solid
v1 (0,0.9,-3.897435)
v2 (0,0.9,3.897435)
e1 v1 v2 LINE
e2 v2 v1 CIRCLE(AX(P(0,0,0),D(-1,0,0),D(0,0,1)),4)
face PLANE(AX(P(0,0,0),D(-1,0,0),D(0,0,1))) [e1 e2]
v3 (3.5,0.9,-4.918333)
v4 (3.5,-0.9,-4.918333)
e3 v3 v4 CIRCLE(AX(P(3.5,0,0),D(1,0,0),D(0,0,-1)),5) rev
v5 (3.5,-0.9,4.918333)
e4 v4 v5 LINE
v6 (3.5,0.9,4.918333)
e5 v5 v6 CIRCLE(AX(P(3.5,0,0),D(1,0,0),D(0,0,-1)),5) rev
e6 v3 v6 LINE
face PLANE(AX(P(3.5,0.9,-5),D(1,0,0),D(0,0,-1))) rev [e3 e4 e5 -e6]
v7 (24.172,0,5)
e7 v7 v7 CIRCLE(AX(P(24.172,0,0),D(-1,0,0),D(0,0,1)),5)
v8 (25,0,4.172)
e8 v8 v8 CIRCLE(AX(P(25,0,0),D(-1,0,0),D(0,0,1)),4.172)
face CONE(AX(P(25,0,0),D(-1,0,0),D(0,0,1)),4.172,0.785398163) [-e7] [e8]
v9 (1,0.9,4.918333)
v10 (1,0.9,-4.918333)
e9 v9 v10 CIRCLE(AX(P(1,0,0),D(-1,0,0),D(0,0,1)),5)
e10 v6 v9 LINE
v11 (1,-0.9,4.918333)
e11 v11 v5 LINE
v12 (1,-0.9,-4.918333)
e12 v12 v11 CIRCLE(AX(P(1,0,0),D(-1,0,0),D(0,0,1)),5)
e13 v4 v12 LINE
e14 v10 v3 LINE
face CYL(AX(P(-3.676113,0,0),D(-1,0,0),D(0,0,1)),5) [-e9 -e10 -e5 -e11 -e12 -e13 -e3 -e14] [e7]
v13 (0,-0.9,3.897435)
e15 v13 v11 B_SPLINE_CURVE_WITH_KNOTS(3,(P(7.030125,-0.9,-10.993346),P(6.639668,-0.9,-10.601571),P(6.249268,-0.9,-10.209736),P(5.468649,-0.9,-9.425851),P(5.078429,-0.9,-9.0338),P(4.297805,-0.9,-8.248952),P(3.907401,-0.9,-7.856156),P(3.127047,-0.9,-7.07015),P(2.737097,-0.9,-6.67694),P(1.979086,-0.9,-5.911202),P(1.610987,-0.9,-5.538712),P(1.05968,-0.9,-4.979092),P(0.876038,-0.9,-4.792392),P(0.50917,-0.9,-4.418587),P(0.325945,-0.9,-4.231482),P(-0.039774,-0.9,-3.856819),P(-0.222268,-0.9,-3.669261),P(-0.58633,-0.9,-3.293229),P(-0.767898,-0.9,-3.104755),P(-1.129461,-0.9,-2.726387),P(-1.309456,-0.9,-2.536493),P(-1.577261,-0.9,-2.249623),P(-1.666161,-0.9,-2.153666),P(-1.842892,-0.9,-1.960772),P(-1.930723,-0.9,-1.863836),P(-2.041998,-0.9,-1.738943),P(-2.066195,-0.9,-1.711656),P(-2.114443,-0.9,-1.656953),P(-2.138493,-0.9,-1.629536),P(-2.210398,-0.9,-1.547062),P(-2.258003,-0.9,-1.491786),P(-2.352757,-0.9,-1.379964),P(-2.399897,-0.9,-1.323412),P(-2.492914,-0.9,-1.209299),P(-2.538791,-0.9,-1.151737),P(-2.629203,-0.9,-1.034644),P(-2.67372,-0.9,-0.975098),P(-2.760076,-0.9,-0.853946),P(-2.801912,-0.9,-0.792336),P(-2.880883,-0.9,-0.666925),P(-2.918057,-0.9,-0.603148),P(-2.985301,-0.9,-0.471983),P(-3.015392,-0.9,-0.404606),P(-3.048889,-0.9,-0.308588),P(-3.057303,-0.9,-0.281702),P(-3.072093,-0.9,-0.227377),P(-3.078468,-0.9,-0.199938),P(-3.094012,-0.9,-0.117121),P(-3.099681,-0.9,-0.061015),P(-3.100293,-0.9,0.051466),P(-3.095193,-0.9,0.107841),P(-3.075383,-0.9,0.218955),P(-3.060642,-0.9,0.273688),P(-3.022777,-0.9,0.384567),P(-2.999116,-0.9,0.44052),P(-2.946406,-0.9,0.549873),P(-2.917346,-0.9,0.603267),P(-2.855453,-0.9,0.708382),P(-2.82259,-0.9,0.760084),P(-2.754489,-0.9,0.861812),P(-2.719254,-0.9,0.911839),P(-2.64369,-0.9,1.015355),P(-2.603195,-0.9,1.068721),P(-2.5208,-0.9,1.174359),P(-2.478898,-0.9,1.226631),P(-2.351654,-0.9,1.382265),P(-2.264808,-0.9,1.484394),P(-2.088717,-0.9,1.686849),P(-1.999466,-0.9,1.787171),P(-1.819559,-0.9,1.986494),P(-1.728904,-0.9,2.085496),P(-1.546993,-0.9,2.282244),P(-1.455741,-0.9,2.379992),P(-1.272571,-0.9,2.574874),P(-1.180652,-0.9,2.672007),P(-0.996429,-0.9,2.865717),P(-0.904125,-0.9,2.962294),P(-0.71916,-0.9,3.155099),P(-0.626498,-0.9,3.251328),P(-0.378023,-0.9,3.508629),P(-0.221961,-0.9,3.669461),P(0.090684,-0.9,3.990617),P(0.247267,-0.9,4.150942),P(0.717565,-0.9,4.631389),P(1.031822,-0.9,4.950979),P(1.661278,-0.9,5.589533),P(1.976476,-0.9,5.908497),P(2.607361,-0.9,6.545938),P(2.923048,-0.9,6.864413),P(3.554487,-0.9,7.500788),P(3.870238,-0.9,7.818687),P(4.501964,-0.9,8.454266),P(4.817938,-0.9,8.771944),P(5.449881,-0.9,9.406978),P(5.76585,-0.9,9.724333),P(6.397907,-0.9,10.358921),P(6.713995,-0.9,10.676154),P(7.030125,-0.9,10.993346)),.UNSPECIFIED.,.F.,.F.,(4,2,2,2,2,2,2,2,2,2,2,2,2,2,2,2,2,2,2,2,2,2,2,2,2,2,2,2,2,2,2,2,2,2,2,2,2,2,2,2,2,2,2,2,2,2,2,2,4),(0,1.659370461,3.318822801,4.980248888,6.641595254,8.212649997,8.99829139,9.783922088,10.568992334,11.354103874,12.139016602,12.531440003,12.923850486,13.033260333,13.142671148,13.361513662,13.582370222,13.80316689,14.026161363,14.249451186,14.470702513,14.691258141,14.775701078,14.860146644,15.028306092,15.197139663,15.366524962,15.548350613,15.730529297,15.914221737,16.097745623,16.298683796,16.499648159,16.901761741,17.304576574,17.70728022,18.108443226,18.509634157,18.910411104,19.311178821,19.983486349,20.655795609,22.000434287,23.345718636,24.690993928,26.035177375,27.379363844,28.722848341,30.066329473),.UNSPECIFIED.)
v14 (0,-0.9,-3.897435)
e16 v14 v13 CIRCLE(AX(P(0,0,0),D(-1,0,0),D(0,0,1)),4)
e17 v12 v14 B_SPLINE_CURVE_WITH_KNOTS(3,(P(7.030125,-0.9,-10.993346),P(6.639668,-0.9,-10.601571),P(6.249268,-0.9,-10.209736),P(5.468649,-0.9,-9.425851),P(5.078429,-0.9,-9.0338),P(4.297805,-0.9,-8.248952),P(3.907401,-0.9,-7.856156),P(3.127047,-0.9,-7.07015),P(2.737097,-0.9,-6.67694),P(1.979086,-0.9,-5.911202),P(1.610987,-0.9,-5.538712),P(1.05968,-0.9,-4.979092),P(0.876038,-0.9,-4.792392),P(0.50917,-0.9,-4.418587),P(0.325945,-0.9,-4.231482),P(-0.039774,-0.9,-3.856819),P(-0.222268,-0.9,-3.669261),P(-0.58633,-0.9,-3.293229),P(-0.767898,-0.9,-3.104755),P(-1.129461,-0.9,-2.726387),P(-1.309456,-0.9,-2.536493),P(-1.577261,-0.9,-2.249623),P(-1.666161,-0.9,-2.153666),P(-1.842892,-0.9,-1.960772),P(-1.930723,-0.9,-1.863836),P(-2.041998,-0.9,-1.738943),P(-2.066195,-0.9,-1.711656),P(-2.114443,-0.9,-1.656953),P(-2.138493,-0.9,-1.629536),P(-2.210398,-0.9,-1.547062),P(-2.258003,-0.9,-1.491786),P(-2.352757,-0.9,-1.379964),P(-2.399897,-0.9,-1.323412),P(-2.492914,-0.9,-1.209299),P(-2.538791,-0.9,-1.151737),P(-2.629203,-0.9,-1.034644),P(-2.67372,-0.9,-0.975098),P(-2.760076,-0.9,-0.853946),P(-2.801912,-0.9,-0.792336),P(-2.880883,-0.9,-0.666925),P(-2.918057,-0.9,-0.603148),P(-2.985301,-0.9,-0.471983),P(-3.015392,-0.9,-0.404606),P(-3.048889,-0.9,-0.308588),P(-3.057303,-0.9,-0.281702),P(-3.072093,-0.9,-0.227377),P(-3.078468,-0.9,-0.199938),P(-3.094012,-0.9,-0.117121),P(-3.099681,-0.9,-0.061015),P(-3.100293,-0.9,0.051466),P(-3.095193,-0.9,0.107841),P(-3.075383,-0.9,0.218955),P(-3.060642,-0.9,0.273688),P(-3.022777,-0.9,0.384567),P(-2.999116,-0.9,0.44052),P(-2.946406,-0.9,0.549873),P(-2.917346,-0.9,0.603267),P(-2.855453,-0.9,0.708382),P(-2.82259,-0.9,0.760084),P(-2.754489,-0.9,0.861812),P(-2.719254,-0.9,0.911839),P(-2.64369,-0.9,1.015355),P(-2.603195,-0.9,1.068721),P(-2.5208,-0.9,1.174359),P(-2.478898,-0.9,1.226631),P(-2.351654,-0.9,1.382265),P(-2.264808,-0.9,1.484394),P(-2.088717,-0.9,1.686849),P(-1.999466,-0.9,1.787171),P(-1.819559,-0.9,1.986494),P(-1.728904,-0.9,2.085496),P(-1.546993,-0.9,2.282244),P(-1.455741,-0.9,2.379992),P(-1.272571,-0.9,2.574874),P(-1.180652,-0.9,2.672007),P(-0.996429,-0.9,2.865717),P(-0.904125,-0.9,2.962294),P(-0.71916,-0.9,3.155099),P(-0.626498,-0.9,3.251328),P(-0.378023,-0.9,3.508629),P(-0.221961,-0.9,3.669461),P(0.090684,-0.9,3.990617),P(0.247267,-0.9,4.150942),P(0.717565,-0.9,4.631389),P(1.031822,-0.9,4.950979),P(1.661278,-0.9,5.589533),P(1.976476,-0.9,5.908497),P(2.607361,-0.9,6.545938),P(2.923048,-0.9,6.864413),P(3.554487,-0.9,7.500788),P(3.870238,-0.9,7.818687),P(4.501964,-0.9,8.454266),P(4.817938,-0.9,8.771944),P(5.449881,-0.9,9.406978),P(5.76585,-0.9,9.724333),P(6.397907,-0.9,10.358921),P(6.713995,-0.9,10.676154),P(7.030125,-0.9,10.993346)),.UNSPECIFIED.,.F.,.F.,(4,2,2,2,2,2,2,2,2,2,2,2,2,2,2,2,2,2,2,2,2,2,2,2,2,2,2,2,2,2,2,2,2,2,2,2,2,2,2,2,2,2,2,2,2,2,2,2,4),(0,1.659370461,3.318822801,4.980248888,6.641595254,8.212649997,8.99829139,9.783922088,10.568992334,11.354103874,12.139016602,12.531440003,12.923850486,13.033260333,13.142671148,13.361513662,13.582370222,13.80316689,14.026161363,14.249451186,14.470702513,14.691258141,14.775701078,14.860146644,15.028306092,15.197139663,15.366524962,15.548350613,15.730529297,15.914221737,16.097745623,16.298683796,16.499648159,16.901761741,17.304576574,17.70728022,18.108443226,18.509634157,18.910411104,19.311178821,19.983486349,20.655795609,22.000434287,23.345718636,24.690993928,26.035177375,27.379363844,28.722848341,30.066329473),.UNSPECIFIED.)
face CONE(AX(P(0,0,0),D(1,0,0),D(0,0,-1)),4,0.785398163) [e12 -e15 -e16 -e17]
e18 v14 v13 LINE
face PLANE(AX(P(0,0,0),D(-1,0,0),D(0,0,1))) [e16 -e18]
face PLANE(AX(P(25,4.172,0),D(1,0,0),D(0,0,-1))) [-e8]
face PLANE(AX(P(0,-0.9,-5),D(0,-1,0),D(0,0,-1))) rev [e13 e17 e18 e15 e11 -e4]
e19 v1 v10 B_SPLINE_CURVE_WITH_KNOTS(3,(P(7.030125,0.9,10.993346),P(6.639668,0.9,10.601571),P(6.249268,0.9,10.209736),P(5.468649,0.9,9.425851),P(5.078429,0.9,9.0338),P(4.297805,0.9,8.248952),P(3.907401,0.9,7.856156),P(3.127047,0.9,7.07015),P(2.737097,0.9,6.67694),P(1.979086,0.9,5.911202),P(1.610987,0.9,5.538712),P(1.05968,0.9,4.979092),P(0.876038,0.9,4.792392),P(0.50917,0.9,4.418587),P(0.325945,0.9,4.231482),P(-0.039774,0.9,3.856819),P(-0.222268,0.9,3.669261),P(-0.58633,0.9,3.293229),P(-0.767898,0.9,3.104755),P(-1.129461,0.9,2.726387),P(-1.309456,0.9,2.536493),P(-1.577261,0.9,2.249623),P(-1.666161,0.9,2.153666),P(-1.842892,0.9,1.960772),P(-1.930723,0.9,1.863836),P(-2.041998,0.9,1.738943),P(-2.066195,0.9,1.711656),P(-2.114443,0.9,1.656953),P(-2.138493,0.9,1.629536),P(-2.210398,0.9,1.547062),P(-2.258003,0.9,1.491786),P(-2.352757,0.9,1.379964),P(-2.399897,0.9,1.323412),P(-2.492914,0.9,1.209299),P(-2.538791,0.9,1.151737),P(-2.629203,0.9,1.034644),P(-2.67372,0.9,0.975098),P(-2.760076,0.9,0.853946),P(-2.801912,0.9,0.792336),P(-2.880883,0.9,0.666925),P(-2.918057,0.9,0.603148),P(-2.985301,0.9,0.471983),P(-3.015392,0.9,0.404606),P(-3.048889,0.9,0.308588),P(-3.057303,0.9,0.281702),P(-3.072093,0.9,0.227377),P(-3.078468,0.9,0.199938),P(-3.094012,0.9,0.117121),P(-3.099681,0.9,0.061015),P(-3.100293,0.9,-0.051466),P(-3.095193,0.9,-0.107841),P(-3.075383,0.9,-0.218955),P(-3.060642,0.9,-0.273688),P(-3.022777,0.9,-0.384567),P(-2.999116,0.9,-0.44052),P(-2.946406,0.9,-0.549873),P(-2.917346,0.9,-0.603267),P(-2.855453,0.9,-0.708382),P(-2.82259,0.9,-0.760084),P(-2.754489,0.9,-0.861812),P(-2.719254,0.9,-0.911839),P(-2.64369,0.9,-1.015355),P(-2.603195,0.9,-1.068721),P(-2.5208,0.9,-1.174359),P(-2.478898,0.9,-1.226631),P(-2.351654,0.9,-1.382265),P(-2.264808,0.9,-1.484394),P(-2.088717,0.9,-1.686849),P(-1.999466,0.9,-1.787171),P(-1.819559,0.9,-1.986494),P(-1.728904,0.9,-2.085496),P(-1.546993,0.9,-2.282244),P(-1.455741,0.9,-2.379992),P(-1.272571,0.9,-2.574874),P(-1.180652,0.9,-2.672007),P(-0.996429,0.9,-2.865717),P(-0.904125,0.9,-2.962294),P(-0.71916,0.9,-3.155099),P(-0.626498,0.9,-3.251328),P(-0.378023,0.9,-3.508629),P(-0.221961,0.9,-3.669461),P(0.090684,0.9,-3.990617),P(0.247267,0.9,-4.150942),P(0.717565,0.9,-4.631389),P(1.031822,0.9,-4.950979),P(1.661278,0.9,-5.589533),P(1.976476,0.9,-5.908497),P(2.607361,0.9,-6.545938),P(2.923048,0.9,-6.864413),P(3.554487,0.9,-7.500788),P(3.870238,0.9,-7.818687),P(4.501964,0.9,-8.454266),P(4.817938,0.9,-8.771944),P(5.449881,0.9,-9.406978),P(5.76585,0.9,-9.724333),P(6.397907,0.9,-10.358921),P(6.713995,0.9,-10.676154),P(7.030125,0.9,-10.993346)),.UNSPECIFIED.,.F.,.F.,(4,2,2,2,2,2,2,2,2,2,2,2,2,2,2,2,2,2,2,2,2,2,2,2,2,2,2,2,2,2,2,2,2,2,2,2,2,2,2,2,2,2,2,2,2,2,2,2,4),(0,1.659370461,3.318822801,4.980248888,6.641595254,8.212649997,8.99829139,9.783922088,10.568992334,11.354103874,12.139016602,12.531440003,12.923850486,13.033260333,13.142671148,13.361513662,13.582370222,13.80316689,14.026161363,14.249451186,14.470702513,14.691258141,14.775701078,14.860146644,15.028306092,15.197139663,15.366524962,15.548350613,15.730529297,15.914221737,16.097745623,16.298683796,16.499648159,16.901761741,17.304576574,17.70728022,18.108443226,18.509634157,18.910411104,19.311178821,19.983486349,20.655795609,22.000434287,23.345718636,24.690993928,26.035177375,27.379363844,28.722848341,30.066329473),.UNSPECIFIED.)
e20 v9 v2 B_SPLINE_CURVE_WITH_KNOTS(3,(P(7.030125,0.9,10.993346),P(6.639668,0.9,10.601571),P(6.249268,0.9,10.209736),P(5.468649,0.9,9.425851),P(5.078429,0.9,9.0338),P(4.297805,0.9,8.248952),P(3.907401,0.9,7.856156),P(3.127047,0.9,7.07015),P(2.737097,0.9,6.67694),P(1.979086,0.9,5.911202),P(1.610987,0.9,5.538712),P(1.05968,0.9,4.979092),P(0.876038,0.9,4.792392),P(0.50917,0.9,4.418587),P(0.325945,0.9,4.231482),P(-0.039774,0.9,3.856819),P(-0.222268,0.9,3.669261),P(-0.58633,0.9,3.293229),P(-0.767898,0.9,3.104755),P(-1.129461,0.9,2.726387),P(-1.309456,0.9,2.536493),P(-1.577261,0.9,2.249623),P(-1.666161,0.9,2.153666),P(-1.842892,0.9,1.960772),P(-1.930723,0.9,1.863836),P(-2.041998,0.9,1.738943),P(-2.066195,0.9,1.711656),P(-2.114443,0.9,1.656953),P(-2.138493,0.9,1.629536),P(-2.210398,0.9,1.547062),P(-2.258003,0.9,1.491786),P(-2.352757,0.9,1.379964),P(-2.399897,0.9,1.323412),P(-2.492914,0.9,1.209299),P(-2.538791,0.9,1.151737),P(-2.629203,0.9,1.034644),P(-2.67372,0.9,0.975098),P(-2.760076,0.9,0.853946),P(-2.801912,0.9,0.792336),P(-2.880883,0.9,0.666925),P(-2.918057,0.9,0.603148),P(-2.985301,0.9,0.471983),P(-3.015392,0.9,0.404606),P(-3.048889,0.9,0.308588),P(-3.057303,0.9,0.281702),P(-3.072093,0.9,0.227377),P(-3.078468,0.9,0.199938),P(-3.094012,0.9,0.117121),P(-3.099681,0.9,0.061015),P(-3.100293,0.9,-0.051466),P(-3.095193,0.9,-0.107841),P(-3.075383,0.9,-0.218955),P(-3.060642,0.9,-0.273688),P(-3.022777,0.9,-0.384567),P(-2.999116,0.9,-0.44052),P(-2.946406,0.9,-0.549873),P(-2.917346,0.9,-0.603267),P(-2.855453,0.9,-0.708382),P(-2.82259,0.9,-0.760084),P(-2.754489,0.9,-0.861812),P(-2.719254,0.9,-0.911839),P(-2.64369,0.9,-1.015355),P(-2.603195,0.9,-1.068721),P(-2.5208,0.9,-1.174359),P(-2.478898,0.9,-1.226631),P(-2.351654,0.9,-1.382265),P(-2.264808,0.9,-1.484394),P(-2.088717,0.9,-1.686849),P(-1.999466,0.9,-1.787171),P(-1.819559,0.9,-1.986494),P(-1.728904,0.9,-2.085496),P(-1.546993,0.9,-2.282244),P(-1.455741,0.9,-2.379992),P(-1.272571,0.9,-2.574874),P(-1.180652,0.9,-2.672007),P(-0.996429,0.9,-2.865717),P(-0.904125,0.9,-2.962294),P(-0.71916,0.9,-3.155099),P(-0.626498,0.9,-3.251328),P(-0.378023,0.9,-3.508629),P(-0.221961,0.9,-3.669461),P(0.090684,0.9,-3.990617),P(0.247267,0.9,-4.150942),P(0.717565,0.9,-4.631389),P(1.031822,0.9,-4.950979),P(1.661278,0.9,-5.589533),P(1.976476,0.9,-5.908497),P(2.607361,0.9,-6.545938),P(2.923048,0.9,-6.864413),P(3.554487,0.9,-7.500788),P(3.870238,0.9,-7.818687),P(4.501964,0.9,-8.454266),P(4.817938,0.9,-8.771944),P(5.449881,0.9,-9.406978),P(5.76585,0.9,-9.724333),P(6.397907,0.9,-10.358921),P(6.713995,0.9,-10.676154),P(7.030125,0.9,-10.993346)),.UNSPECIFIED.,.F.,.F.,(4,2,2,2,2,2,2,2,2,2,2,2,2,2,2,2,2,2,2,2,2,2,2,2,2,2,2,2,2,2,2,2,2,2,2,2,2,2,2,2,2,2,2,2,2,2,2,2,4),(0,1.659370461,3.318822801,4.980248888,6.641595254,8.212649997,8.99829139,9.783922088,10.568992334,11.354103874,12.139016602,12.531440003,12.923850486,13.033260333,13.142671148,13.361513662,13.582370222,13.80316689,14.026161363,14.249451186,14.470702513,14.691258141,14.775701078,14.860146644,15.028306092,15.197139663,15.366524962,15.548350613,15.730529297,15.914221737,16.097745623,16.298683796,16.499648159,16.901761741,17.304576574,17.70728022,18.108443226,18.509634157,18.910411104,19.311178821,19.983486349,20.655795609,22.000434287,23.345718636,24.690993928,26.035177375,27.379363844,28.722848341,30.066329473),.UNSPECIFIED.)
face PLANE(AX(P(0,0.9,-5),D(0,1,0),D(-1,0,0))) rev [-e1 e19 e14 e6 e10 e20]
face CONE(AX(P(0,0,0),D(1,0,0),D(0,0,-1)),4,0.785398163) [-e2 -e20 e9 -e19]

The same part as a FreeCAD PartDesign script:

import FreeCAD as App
import Part
import Sketcher

V = App.Vector
Q = App.Units.Quantity


def add_polygon(sketch, points):
    """Adds a closed chain of lines whose ends are joined by coincident constraints."""
    first, n = sketch.GeometryCount, len(points)
    for a, b in zip(points, points[1:] + points[:1]):
        sketch.addGeometry(Part.LineSegment(App.Vector(*a, 0), App.Vector(*b, 0)), False)
    for i in range(n):
        sketch.addConstraint(Sketcher.Constraint("Coincident", first + i, 2, first + (i + 1) % n, 1))

doc = App.newDocument("Part")
body = doc.addObject("PartDesign::Body", "Body")

# Sketch on XY plane
sketch1 = body.newObject("Sketcher::SketchObject", "Sketch")
sketch1.AttachmentSupport = (doc.getObject("XY_Plane"), [""])
sketch1.MapMode = "FlatFace"
add_polygon(sketch1, [(0, 4), (0, 0), (25, 0), (25, 4.172), (24.172, 5), (1, 5)])  # lines 0-5
sketch1.addConstraint([
    Sketcher.Constraint("Vertical", 0),
    Sketcher.Constraint("Horizontal", 1),
    Sketcher.Constraint("Vertical", 2),
    Sketcher.Constraint("Horizontal", 4),
    Sketcher.Constraint("Coincident", 0, 2, -1, 1),
    Sketcher.Constraint("Perpendicular", 3, 5),
    Sketcher.Constraint("DistanceX", 1, 1, 1, 2, 25.0),
    Sketcher.Constraint("DistanceY", 0, 2, 0, 1, 4.0),
    Sketcher.Constraint("Angle", 3, Q("135 deg")),
    Sketcher.Constraint("DistanceY", -1, 1, 3, 2, 5.0),
    Sketcher.Constraint("DistanceX", 4, 2, 4, 1, 23.172),
])
revolution = body.newObject("PartDesign::Revolution", "Revolution")
revolution.Profile = sketch1
revolution.ReferenceAxis = (sketch1, ["H_Axis"])
revolution.Angle = 360

# Sketch on XY plane
sketch2 = body.newObject("Sketcher::SketchObject", "Sketch001")
sketch2.AttachmentSupport = (doc.getObject("XY_Plane"), [""])
sketch2.MapMode = "FlatFace"
add_polygon(sketch2, [(0, 0.9), (0, -0.9), (3.5, -0.9), (3.5, 0.9)])  # lines 0-3
sketch2.addConstraint([
    Sketcher.Constraint("Vertical", 0),
    Sketcher.Constraint("Horizontal", 1),
    Sketcher.Constraint("Vertical", 2),
    Sketcher.Constraint("Horizontal", 3),
    Sketcher.Constraint("Symmetric", 0, 2, 3, 2, -1, 1),
    Sketcher.Constraint("DistanceX", 1, 1, 1, 2, 3.5),
    Sketcher.Constraint("DistanceY", 0, 2, 0, 1, 1.8),
])
pocket1 = body.newObject("PartDesign::Pocket", "Pocket")
pocket1.Profile = sketch2
pocket1.Type = "ThroughAll"
pocket1.Midplane = True

doc.recompute()
